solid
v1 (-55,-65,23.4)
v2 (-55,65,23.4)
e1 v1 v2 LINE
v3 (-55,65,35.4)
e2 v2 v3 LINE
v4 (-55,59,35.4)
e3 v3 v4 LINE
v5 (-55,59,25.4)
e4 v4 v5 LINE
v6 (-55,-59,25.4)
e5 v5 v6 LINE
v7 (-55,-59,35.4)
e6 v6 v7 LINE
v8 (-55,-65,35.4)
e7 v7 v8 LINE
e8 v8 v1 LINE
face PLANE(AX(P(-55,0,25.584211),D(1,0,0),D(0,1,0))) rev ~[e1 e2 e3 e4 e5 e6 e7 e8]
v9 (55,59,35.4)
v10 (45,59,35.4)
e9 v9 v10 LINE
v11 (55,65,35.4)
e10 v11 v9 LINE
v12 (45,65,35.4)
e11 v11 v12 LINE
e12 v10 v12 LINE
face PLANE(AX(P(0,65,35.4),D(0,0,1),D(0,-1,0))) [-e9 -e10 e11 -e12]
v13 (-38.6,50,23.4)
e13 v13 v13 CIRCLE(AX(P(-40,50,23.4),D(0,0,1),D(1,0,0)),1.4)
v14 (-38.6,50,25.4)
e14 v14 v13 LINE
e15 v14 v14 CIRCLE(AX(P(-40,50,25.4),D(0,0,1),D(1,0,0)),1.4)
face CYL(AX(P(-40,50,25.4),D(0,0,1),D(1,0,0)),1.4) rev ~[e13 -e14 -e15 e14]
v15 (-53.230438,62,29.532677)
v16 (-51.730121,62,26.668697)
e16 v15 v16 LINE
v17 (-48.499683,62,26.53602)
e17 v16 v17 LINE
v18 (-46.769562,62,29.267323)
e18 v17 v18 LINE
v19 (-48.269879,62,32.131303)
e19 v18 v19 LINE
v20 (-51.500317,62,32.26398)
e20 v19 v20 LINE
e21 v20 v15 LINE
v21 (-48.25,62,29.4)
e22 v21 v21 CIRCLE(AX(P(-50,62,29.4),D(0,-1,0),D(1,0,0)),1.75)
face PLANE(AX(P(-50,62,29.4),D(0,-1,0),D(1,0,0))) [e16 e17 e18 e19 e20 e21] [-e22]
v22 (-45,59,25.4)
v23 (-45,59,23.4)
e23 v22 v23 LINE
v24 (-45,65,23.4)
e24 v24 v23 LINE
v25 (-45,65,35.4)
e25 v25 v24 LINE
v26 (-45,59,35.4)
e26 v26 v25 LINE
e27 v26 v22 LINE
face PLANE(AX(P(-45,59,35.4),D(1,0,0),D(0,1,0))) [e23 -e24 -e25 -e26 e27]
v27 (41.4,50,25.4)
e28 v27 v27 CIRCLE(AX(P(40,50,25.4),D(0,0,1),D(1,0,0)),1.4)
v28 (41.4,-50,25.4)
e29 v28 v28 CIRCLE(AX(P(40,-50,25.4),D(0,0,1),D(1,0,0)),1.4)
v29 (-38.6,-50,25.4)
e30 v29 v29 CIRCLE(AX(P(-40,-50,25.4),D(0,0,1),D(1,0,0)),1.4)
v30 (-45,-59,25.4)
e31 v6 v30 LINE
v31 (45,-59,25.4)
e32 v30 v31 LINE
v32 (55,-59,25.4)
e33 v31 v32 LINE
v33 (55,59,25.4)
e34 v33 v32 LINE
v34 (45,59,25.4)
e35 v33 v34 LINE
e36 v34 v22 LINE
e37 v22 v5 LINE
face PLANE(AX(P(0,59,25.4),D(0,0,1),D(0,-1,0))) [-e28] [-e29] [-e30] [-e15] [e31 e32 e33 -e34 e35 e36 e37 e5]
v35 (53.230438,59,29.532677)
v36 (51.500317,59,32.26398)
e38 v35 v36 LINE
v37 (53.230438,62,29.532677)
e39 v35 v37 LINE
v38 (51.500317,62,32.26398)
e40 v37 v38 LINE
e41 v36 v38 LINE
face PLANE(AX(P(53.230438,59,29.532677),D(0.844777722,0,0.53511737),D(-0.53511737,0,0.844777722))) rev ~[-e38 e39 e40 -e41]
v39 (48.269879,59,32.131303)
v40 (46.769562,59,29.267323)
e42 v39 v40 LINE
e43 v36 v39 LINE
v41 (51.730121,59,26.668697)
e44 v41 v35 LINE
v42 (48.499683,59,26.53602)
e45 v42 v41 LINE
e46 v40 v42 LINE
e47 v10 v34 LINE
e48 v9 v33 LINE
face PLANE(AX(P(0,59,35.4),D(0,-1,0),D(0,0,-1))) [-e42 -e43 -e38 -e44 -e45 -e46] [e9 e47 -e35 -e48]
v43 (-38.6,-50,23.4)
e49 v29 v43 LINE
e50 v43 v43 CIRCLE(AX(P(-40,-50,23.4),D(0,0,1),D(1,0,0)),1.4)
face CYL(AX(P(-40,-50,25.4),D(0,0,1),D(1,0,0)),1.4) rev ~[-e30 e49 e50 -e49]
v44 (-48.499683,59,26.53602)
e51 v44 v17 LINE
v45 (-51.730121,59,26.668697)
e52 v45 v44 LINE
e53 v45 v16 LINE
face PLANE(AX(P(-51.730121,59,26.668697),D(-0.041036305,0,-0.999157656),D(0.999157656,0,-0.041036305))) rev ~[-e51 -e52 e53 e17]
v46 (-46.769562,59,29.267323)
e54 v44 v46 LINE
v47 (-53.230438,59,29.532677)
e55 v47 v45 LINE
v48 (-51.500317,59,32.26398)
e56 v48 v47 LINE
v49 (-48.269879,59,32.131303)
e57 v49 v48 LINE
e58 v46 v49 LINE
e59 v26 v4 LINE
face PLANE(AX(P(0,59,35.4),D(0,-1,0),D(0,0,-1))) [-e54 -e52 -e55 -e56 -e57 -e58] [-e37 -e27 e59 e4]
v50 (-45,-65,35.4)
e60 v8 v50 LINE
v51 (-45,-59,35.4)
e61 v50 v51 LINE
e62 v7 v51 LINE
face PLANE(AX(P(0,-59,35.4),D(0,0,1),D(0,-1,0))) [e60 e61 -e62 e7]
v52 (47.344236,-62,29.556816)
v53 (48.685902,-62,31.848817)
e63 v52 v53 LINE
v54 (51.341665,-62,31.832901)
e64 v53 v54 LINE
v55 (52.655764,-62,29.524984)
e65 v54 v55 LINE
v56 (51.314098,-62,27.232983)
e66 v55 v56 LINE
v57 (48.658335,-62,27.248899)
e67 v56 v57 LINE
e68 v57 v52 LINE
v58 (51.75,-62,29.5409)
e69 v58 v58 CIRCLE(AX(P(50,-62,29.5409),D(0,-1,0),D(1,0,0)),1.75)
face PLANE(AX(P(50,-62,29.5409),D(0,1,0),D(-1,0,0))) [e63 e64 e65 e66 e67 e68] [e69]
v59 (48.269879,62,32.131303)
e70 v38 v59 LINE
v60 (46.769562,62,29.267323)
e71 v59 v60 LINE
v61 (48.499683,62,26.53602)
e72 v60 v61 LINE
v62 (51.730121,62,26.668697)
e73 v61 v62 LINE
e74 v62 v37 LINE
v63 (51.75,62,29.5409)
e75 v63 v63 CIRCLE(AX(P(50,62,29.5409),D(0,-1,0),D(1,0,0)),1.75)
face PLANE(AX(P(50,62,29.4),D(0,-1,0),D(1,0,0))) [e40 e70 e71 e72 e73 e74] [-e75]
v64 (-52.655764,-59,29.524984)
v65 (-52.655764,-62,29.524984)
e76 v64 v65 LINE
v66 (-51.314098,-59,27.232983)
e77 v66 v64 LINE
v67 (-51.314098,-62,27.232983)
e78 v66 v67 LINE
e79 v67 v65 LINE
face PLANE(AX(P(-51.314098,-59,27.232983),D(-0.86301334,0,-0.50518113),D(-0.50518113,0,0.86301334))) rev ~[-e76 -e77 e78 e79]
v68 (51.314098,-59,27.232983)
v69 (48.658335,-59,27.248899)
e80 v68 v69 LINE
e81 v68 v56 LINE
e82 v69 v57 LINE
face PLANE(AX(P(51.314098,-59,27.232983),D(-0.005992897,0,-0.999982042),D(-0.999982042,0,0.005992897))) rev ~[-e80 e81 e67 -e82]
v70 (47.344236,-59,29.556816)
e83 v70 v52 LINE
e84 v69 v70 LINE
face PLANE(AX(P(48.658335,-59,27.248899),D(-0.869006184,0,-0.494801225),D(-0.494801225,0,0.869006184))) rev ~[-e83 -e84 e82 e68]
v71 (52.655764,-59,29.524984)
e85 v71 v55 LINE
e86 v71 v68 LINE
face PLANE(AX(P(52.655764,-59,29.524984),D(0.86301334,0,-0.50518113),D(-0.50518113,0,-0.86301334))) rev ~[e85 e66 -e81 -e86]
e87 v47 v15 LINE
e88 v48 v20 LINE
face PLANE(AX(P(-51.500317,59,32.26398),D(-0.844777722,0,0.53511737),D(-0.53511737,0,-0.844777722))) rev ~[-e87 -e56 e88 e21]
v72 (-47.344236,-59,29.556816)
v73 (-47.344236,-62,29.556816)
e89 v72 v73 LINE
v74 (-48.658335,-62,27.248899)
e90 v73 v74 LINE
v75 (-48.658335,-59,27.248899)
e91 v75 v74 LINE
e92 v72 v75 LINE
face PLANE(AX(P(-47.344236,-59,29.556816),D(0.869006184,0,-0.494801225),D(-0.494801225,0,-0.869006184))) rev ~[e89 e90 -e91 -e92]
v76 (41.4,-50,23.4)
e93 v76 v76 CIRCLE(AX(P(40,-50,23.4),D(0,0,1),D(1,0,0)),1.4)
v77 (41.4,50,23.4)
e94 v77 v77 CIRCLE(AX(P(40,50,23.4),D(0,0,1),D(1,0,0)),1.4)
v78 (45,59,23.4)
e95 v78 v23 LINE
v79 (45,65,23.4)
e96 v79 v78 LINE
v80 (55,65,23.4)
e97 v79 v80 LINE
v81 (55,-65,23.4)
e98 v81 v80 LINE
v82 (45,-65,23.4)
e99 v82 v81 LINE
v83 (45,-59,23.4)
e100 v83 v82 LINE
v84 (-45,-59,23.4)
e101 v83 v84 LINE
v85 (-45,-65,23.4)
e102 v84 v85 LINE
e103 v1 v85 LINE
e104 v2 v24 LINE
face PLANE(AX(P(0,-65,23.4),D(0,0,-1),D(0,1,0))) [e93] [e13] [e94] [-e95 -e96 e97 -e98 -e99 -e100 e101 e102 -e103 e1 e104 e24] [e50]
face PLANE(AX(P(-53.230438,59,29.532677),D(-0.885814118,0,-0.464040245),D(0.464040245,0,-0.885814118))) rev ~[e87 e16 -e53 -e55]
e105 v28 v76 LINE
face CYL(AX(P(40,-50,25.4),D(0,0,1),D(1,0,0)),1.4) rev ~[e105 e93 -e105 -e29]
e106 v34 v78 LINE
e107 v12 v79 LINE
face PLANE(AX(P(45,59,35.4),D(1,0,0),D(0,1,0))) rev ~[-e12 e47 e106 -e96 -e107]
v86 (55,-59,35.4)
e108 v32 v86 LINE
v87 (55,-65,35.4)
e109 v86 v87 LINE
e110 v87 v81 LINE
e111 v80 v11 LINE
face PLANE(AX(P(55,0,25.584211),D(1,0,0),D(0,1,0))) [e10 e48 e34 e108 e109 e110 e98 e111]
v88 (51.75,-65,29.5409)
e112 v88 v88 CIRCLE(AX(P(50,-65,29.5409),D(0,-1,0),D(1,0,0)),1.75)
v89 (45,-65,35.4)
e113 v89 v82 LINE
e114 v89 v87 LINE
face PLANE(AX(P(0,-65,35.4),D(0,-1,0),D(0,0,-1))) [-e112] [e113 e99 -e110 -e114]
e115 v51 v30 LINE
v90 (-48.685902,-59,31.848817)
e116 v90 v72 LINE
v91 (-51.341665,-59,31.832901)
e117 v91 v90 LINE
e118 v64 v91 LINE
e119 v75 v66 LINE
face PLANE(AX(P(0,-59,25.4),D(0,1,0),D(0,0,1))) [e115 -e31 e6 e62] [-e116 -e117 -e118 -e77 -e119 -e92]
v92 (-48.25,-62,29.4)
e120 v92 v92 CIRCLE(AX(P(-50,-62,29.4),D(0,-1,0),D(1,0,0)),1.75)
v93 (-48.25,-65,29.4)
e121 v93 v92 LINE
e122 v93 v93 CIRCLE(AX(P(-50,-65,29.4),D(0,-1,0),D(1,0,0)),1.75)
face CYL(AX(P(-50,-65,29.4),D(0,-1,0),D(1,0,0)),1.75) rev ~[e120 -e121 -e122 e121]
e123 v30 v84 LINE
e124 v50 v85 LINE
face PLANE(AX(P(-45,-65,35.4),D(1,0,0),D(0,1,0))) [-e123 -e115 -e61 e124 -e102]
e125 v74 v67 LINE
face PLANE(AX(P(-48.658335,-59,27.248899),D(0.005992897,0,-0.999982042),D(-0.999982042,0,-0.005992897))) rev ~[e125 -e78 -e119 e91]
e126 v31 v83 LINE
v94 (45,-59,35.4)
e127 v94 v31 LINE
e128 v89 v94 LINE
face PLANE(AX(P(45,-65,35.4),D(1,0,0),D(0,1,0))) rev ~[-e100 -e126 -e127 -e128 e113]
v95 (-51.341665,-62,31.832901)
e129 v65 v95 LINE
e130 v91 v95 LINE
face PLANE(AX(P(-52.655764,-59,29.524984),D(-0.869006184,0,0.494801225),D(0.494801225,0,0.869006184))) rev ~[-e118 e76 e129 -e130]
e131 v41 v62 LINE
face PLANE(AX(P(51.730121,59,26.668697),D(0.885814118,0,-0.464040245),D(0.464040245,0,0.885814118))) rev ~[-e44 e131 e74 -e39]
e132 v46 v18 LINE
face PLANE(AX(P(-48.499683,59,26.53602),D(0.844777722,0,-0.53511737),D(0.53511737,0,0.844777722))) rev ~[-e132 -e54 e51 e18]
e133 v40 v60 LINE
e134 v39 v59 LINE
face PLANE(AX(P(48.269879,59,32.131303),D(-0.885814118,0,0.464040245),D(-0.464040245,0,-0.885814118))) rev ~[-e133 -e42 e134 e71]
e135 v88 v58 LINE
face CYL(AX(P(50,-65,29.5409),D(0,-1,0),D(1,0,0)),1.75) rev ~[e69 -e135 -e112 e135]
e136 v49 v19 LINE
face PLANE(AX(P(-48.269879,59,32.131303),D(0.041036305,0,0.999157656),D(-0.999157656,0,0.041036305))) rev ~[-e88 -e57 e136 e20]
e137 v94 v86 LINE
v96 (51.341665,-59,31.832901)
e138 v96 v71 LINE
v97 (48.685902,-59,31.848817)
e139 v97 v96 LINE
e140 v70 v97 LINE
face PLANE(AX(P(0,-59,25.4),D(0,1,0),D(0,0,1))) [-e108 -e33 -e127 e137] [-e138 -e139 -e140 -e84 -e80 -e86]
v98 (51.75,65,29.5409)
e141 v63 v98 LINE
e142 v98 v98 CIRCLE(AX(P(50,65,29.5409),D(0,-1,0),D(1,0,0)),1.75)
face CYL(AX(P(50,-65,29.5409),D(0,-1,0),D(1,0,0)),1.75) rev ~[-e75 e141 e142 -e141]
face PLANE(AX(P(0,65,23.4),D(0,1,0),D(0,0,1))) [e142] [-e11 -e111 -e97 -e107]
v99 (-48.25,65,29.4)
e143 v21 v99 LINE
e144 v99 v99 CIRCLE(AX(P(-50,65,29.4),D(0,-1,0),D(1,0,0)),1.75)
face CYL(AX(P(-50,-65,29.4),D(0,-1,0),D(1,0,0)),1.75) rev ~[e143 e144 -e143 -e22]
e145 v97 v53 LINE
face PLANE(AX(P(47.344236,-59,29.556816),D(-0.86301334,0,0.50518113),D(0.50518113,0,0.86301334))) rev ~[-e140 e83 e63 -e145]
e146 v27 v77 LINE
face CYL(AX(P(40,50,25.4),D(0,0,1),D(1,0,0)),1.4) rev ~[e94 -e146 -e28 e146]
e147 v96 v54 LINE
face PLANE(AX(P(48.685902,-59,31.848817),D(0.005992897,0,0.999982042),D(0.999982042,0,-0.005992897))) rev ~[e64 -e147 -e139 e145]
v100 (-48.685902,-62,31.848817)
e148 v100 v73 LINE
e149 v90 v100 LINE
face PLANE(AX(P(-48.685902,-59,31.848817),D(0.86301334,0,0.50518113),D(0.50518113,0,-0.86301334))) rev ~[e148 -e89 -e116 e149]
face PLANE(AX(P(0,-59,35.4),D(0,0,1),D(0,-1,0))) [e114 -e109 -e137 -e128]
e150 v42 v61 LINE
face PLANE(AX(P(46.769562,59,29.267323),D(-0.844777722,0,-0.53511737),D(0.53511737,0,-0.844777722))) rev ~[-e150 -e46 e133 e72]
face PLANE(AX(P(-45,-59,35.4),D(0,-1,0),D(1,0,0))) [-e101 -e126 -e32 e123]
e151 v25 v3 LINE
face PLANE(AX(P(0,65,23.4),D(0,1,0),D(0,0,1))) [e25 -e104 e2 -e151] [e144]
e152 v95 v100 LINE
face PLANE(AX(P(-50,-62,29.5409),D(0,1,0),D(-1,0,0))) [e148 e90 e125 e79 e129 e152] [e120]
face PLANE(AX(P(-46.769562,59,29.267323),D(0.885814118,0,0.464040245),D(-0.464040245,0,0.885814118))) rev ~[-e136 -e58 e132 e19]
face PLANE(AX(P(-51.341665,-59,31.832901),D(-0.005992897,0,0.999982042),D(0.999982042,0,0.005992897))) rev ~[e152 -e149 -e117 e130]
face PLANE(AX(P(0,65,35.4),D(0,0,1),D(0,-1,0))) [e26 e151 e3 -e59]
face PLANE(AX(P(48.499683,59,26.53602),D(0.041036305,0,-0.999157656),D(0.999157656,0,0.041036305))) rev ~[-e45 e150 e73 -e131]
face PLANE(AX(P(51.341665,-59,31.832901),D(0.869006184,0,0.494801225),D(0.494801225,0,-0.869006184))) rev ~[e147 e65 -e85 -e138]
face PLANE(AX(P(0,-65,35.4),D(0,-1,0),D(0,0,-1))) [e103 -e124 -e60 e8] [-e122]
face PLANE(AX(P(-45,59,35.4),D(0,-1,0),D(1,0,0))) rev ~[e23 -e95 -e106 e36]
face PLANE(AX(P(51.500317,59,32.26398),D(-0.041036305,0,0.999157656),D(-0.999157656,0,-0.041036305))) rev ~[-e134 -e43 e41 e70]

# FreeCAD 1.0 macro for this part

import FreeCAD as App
import Part
import Sketcher
from FreeCAD import Vector
Q = App.Units.Quantity


def add_polygon(sketch, points):
    """Adds a closed chain of lines whose ends are joined by coincident constraints."""
    first, n = sketch.GeometryCount, len(points)
    for a, b in zip(points, points[1:] + points[:1]):
        sketch.addGeometry(Part.LineSegment(App.Vector(*a, 0), App.Vector(*b, 0)), False)
    for i in range(n):
        sketch.addConstraint(Sketcher.Constraint("Coincident", first + i, 2, first + (i + 1) % n, 1))

doc = App.newDocument("Part")
params = doc.addObject("Spreadsheet::Sheet", "Params")
for row, (alias, value) in enumerate([
    ("sketch1_width", "118 mm"),
    ("sketch1_width2", "6 mm"),
    ("sketch1_height", "10 mm"),
    ("sketch1_height2", "12 mm"),
    ("pad1_length", "110 mm"),
    ("sketch2_width", "90 mm"),
    ("sketch2_height", "6 mm"),
    ("pocket1_length", "25 mm"),
    ("sketch3_diameter", "3.5 mm"),
    ("pocket3_length", "3 mm"),
    ("pocket4_length", "3 mm"),
    ("sketch6_diameter", "2.8 mm"),
    ("pocket5_length", "25 mm"),
], start=1):
    params.set(f"A{row}", alias)
    params.set(f"B{row}", "=" + value)
    params.setAlias(f"B{row}", alias)

body = doc.addObject("PartDesign::Body", "Body")

# Sketch on YZ plane
sketch1 = body.newObject("Sketcher::SketchObject", "Sketch")
sketch1.AttachmentSupport = (doc.getObject("YZ_Plane"), [""])
sketch1.MapMode = "FlatFace"
add_polygon(sketch1, [(59, 25), (-59, 25), (-59, 35), (-65, 35), (-65, 23), (65, 23), (65, 35), (59, 35)])  # lines 0-7
sketch1.addConstraint(Sketcher.Constraint("Horizontal", 0))
sketch1.addConstraint(Sketcher.Constraint("Vertical", 1))
sketch1.addConstraint(Sketcher.Constraint("Horizontal", 2))
sketch1.addConstraint(Sketcher.Constraint("Vertical", 3))
sketch1.addConstraint(Sketcher.Constraint("Horizontal", 4))
sketch1.addConstraint(Sketcher.Constraint("Vertical", 5))
sketch1.addConstraint(Sketcher.Constraint("Horizontal", 6))
sketch1.addConstraint(Sketcher.Constraint("Vertical", 7))
sketch1.addConstraint(Sketcher.Constraint("Symmetric", 2, 2, 5, 2, -2))
sketch1.addConstraint(Sketcher.Constraint("Equal", 2, 6))
sketch1.addConstraint(Sketcher.Constraint("DistanceX", 0, 2, 0, 1, Q("118 mm")))
sketch1.addConstraint(Sketcher.Constraint("DistanceX", 2, 2, 2, 1, Q("6 mm")))
sketch1.addConstraint(Sketcher.Constraint("DistanceY", 1, 1, 1, 2, Q("10 mm")))
sketch1.addConstraint(Sketcher.Constraint("DistanceY", 3, 2, 3, 1, Q("12 mm")))
sketch1.addConstraint(Sketcher.Constraint("DistanceY", -1, 1, 0, 2, Q("25.4 mm")))
sketch1.setExpression("Constraints[18]", "Params.sketch1_width")
sketch1.setExpression("Constraints[19]", "Params.sketch1_width2")
sketch1.setExpression("Constraints[20]", "Params.sketch1_height")
sketch1.setExpression("Constraints[21]", "Params.sketch1_height2")
pad1 = body.newObject("PartDesign::Pad", "Pad")
pad1.Profile = sketch1
pad1.setExpression("Length", "Params.pad1_length")
pad1.Midplane = True

# Sketch on XY plane
sketch2 = body.newObject("Sketcher::SketchObject", "Sketch001")
sketch2.AttachmentSupport = (doc.getObject("XY_Plane"), [""])
sketch2.MapMode = "FlatFace"
sketch2.AttachmentOffset = App.Placement(Vector(0, 0, 35.4), App.Rotation())
add_polygon(sketch2, [(-45, 65), (-45, 59), (45, 59), (45, 65)])  # lines 0-3
add_polygon(sketch2, [(-45, -59), (-45, -65), (45, -65), (45, -59)])  # lines 4-7
sketch2.addConstraint(Sketcher.Constraint("Vertical", 0))
sketch2.addConstraint(Sketcher.Constraint("Horizontal", 1))
sketch2.addConstraint(Sketcher.Constraint("Vertical", 2))
sketch2.addConstraint(Sketcher.Constraint("Horizontal", 3))
sketch2.addConstraint(Sketcher.Constraint("Vertical", 4))
sketch2.addConstraint(Sketcher.Constraint("Horizontal", 5))
sketch2.addConstraint(Sketcher.Constraint("Vertical", 6))
sketch2.addConstraint(Sketcher.Constraint("Horizontal", 7))
sketch2.addConstraint(Sketcher.Constraint("Symmetric", 2, 2, 4, 2, -1, 1))
sketch2.addConstraint(Sketcher.Constraint("Symmetric", 0, 2, 6, 2, -1, 1))
sketch2.addConstraint(Sketcher.Constraint("Vertical", 3, 2, 4, 2))
sketch2.addConstraint(Sketcher.Constraint("DistanceX", 1, 1, 1, 2, Q("90 mm")))
sketch2.addConstraint(Sketcher.Constraint("DistanceY", 0, 2, 0, 1, Q("6 mm")))
sketch2.addConstraint(Sketcher.Constraint("DistanceY", -1, 1, 0, 2, Q("59 mm")))
sketch2.setExpression("Constraints[19]", "Params.sketch2_width")
sketch2.setExpression("Constraints[20]", "Params.sketch2_height")
pocket1 = body.newObject("PartDesign::Pocket", "Pocket")
pocket1.Profile = sketch2
pocket1.setExpression("Length", "Params.pocket1_length")

# Sketch on XZ plane
sketch3 = body.newObject("Sketcher::SketchObject", "Sketch002")
sketch3.AttachmentSupport = (doc.getObject("XZ_Plane"), [""])
sketch3.MapMode = "FlatFace"
sketch3.AttachmentOffset = App.Placement(Vector(0, 0, 65), App.Rotation())
sketch3.addGeometry(Part.Circle(Vector(-50, 29.4, 0), Vector(0, 0, 1), 1.8), False)
sketch3.addGeometry(Part.Circle(Vector(50, 29.5, 0), Vector(0, 0, 1), 1.8), False)
sketch3.addConstraint(Sketcher.Constraint("Equal", 0, 1))
sketch3.addConstraint(Sketcher.Constraint("Diameter", 0, Q("3.5 mm")))
sketch3.addConstraint(Sketcher.Constraint("DistanceX", 0, 3, -1, 1, Q("50 mm")))
sketch3.addConstraint(Sketcher.Constraint("DistanceX", -1, 1, 1, 3, Q("50 mm")))
sketch3.addConstraint(Sketcher.Constraint("DistanceY", -1, 1, 0, 3, Q("29.4 mm")))
sketch3.addConstraint(Sketcher.Constraint("DistanceY", -1, 1, 1, 3, Q("29.5409 mm")))
sketch3.setExpression("Constraints[1]", "Params.sketch3_diameter")
pocket2 = body.newObject("PartDesign::Pocket", "Pocket001")
pocket2.Profile = sketch3
pocket2.Type = "ThroughAll"

# Sketch on XZ plane
sketch4 = body.newObject("Sketcher::SketchObject", "Sketch003")
sketch4.AttachmentSupport = (doc.getObject("XZ_Plane"), [""])
sketch4.MapMode = "FlatFace"
sketch4.AttachmentOffset = App.Placement(Vector(0, 0, -59), App.Rotation())
add_polygon(sketch4, [(-46.8, 29.3), (-48.3, 32.1), (-51.5, 32.3), (-53.2, 29.5), (-51.7, 26.7), (-48.5, 26.5)])  # lines 0-5
add_polygon(sketch4, [(51.7, 26.7), (53.2, 29.5), (51.5, 32.3), (48.3, 32.1), (46.8, 29.3), (48.5, 26.5)])  # lines 6-11
sketch4.addConstraint(Sketcher.Constraint("Symmetric", 2, 2, 6, 2, -2))
sketch4.addConstraint(Sketcher.Constraint("Symmetric", 1, 2, 7, 2, -2))
sketch4.addConstraint(Sketcher.Constraint("Symmetric", 0, 2, 8, 2, -2))
sketch4.addConstraint(Sketcher.Constraint("Symmetric", 5, 2, 9, 2, -2))
sketch4.addConstraint(Sketcher.Constraint("Symmetric", 4, 2, 10, 2, -2))
sketch4.addConstraint(Sketcher.Constraint("Symmetric", 3, 2, 11, 2, -2))
sketch4.addConstraint(Sketcher.Constraint("Parallel", 0, 3))
sketch4.addConstraint(Sketcher.Constraint("Parallel", 1, 4))
sketch4.addConstraint(Sketcher.Constraint("Parallel", 2, 5))
sketch4.addConstraint(Sketcher.Constraint("Equal", 0, 1))
sketch4.addConstraint(Sketcher.Constraint("Equal", 1, 2))
sketch4.addConstraint(Sketcher.Constraint("Equal", 2, 3))
sketch4.addConstraint(Sketcher.Constraint("DistanceX", 5, 2, 6, 2, Q("100 mm")))
sketch4.addConstraint(Sketcher.Constraint("Distance", 0, Q("3.233161 mm")))
sketch4.addConstraint(Sketcher.Constraint("DistanceX", 0, 2, -1, 1, Q("48.269879 mm")))
sketch4.addConstraint(Sketcher.Constraint("DistanceY", -1, 1, 1, 2, Q("32.26398 mm")))
sketch4.addConstraint(Sketcher.Constraint("DistanceY", -1, 1, 4, 2, Q("26.53602 mm")))
sketch4.addConstraint(Sketcher.Constraint("DistanceX", 2, 2, 1, 2, Q("1.730121 mm")))
pocket3 = body.newObject("PartDesign::Pocket", "Pocket002")
pocket3.Profile = sketch4
pocket3.setExpression("Length", "Params.pocket3_length")

# Sketch on XZ plane
sketch5 = body.newObject("Sketcher::SketchObject", "Sketch004")
sketch5.AttachmentSupport = (doc.getObject("XZ_Plane"), [""])
sketch5.MapMode = "FlatFace"
sketch5.AttachmentOffset = App.Placement(Vector(0, 0, 59), App.Rotation())
add_polygon(sketch5, [(47.3, 29.6), (48.7, 31.8), (51.3, 31.8), (52.7, 29.5), (51.3, 27.2), (48.7, 27.2)])  # lines 0-5
add_polygon(sketch5, [(-51.3, 31.8), (-48.7, 31.8), (-47.3, 29.6), (-48.7, 27.2), (-51.3, 27.2), (-52.7, 29.5)])  # lines 6-11
sketch5.addConstraint(Sketcher.Constraint("Symmetric", 0, 2, 6, 2, -2))
sketch5.addConstraint(Sketcher.Constraint("Symmetric", 5, 2, 7, 2, -2))
sketch5.addConstraint(Sketcher.Constraint("Symmetric", 4, 2, 8, 2, -2))
sketch5.addConstraint(Sketcher.Constraint("Symmetric", 3, 2, 9, 2, -2))
sketch5.addConstraint(Sketcher.Constraint("Symmetric", 2, 2, 10, 2, -2))
sketch5.addConstraint(Sketcher.Constraint("Symmetric", 1, 2, 11, 2, -2))
sketch5.addConstraint(Sketcher.Constraint("Parallel", 0, 3))
sketch5.addConstraint(Sketcher.Constraint("Parallel", 1, 4))
sketch5.addConstraint(Sketcher.Constraint("Parallel", 2, 5))
sketch5.addConstraint(Sketcher.Constraint("Equal", 0, 1))
sketch5.addConstraint(Sketcher.Constraint("Equal", 1, 2))
sketch5.addConstraint(Sketcher.Constraint("Equal", 2, 3))
sketch5.addConstraint(Sketcher.Constraint("DistanceX", 6, 2, 3, 2, Q("100 mm")))
sketch5.addConstraint(Sketcher.Constraint("DistanceY", 3, 2, 2, 2, Q("2.292001 mm")))
sketch5.addConstraint(Sketcher.Constraint("DistanceY", 4, 2, 1, 2, Q("4.584002 mm")))
sketch5.addConstraint(Sketcher.Constraint("DistanceY", -1, 1, 1, 2, Q("31.832901 mm")))
sketch5.addConstraint(Sketcher.Constraint("DistanceX", 1, 2, 2, 2, Q("1.314099 mm")))
sketch5.addConstraint(Sketcher.Constraint("Distance", 0, Q("2.655812 mm")))
pocket4 = body.newObject("PartDesign::Pocket", "Pocket003")
pocket4.Profile = sketch5
pocket4.setExpression("Length", "Params.pocket4_length")
pocket4.Reversed = True

# Sketch on XY plane
sketch6 = body.newObject("Sketcher::SketchObject", "Sketch005")
sketch6.AttachmentSupport = (doc.getObject("XY_Plane"), [""])
sketch6.MapMode = "FlatFace"
sketch6.AttachmentOffset = App.Placement(Vector(0, 0, 25.4), App.Rotation())
sketch6.addGeometry(Part.Circle(Vector(-40, 50, 0), Vector(0, 0, 1), 1.4), False)
sketch6.addGeometry(Part.Circle(Vector(40, 50, 0), Vector(0, 0, 1), 1.4), False)
sketch6.addGeometry(Part.Circle(Vector(-40, -50, 0), Vector(0, 0, 1), 1.4), False)
sketch6.addGeometry(Part.Circle(Vector(40, -50, 0), Vector(0, 0, 1), 1.4), False)
sketch6.addConstraint(Sketcher.Constraint("Equal", 0, 1))
sketch6.addConstraint(Sketcher.Constraint("Equal", 1, 2))
sketch6.addConstraint(Sketcher.Constraint("Equal", 2, 3))
sketch6.addConstraint(Sketcher.Constraint("Symmetric", 1, 3, 2, 3, -1, 1))
sketch6.addConstraint(Sketcher.Constraint("Symmetric", 0, 3, 3, 3, -1, 1))
sketch6.addConstraint(Sketcher.Constraint("Symmetric", 0, 3, 1, 3, -2))
sketch6.addConstraint(Sketcher.Constraint("Diameter", 0, Q("2.8 mm")))
sketch6.addConstraint(Sketcher.Constraint("DistanceX", 0, 3, -1, 1, Q("40 mm")))
sketch6.addConstraint(Sketcher.Constraint("DistanceY", -1, 1, 0, 3, Q("50 mm")))
sketch6.setExpression("Constraints[6]", "Params.sketch6_diameter")
pocket5 = body.newObject("PartDesign::Pocket", "Pocket004")
pocket5.Profile = sketch6
pocket5.setExpression("Length", "Params.pocket5_length")

doc.recompute()
